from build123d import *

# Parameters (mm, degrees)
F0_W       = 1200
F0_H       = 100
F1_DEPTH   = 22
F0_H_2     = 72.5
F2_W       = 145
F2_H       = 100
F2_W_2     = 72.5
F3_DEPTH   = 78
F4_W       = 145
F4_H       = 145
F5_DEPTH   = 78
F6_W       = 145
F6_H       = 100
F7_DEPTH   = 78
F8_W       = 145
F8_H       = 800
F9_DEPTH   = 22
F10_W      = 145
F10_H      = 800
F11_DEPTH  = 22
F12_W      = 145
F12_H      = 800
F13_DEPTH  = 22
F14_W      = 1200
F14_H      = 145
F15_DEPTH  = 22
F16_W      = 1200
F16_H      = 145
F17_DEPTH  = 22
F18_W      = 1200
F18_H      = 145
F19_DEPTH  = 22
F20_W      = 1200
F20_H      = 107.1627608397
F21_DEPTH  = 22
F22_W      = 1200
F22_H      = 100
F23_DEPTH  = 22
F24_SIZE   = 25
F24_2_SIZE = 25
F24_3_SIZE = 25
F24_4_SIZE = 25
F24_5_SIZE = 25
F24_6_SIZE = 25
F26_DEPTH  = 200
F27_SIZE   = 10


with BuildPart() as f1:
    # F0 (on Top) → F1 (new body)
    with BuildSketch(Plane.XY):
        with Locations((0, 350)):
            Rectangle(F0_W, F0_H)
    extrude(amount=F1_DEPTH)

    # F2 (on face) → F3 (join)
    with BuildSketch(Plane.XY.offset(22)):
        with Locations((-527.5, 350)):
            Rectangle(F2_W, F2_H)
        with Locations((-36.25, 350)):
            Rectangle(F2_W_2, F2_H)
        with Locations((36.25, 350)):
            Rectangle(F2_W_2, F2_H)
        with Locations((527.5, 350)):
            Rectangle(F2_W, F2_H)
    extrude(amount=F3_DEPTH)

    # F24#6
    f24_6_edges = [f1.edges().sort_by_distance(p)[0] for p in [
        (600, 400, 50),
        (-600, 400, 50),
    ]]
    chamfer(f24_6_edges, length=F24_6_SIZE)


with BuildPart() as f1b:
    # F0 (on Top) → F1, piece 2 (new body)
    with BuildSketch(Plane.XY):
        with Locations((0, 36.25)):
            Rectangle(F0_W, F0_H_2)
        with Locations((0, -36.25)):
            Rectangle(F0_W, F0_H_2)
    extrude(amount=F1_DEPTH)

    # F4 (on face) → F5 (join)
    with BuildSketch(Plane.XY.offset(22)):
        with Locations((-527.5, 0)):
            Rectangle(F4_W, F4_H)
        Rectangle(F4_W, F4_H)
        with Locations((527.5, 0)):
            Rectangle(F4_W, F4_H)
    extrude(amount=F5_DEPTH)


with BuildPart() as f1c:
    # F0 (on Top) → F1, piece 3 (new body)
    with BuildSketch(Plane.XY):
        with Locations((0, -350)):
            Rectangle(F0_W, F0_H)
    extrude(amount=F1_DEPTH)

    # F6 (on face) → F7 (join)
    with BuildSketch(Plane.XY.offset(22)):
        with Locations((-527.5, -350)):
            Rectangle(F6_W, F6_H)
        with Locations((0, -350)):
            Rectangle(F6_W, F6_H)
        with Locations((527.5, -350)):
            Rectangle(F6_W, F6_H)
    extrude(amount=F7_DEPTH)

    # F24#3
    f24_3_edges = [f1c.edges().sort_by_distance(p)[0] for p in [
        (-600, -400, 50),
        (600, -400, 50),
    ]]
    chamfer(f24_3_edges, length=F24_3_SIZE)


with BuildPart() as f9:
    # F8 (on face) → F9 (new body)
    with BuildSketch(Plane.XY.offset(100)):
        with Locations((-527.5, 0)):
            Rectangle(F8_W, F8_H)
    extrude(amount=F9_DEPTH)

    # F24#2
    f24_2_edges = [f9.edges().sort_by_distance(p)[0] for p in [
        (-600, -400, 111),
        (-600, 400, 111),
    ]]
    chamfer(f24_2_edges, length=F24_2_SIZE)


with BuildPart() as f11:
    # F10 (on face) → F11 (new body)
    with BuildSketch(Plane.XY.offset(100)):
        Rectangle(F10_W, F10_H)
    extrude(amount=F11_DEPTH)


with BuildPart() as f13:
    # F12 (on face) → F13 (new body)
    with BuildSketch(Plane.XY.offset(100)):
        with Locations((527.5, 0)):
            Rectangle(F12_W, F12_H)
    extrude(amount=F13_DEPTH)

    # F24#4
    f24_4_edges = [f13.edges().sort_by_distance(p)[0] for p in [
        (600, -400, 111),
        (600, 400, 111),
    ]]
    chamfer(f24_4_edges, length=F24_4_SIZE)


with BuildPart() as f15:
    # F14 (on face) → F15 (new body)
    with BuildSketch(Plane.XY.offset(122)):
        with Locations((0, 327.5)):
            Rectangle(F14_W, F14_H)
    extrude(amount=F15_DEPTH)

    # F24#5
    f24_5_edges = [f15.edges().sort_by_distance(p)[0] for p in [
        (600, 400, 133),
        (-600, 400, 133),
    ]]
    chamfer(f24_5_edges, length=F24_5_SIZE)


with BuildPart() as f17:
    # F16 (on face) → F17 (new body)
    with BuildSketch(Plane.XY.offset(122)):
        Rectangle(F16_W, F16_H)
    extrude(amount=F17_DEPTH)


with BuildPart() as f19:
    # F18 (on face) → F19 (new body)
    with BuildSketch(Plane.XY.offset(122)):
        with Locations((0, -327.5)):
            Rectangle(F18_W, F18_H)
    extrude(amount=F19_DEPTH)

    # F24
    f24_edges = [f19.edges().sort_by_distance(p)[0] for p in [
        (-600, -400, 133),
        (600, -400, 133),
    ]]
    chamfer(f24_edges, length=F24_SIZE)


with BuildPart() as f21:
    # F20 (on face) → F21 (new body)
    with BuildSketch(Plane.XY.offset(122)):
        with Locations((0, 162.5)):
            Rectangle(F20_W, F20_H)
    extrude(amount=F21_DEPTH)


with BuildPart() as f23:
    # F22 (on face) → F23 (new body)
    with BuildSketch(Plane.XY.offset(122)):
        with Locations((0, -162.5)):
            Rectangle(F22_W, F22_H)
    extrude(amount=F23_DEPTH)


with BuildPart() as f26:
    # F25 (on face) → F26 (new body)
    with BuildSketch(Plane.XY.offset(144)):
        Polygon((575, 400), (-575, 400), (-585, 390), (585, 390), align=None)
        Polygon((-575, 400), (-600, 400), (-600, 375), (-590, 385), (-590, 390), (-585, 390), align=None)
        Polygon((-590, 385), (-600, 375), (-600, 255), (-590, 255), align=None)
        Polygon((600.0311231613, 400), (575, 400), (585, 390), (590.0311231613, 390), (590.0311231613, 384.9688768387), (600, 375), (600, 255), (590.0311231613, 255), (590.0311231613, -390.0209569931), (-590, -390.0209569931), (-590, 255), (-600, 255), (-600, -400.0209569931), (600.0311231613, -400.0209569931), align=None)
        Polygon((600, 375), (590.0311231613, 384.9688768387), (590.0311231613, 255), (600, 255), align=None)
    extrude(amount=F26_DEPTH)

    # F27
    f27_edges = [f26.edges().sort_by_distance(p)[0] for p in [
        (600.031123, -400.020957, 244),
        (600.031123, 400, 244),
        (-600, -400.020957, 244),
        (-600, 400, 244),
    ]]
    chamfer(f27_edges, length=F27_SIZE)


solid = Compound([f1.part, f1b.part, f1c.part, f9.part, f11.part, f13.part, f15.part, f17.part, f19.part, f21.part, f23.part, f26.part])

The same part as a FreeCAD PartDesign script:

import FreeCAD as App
import Part
import Sketcher

V = App.Vector


def edges_at(feature, points):
    """Names of the edges that pass closest to the given points."""
    edges = feature.Shape.Edges
    near = lambda p: min(range(len(edges)), key=lambda i: edges[i].distToShape(Part.Vertex(*p))[0])
    return sorted({f"Edge{near(p) + 1}" for p in points})

doc = App.newDocument("Part")
body = doc.addObject("PartDesign::Body", "Body")

sketch1 = doc.addObject("Sketcher::SketchObject", "Sketch")
body.addObject(sketch1)
sketch1.AttachmentSupport = (doc.XY_Plane, [""])
sketch1.MapMode = "FlatFace"
sketch1.addGeometry([
    Part.LineSegment(V(-600, 400, 0), V(-600, 300, 0)),
    Part.LineSegment(V(-600, 300, 0), V(600, 300, 0)),
    Part.LineSegment(V(600, 300, 0), V(600, 400, 0)),
    Part.LineSegment(V(600, 400, 0), V(-600, 400, 0)),
], False)
sketch1.addConstraint([
    Sketcher.Constraint("Coincident", 0, 2, 1, 1),
    Sketcher.Constraint("Coincident", 1, 2, 2, 1),
    Sketcher.Constraint("Coincident", 2, 2, 3, 1),
    Sketcher.Constraint("Coincident", 3, 2, 0, 1),
    Sketcher.Constraint("Vertical", 0),
    Sketcher.Constraint("Horizontal", 1),
    Sketcher.Constraint("Vertical", 2),
    Sketcher.Constraint("Horizontal", 3),
    Sketcher.Constraint("DistanceX", 1, 1, 1, 2, 1200.0),
    Sketcher.Constraint("DistanceY", 0, 2, 0, 1, 100.0),
    Sketcher.Constraint("DistanceX", 0, 2, -1, 1, 600.0),
    Sketcher.Constraint("DistanceY", -1, 1, 0, 2, 300.0),
])
pad1 = doc.addObject("PartDesign::Pad", "Pad")
body.addObject(pad1)
pad1.Profile = sketch1
pad1.Length = 22

sketch2 = doc.addObject("Sketcher::SketchObject", "Sketch001")
body.addObject(sketch2)
sketch2.AttachmentSupport = (doc.XY_Plane, [""])
sketch2.MapMode = "FlatFace"
sketch2.AttachmentOffset = App.Placement(V(0, 0, 22), App.Rotation())
sketch2.addGeometry([
    Part.LineSegment(V(-600, 400, 0), V(-600, 300, 0)),
    Part.LineSegment(V(-600, 300, 0), V(-455, 300, 0)),
    Part.LineSegment(V(-455, 300, 0), V(-455, 400, 0)),
    Part.LineSegment(V(-455, 400, 0), V(-600, 400, 0)),
    Part.LineSegment(V(-72, 400, 0), V(-72, 300, 0)),
    Part.LineSegment(V(-72, 300, 0), V(72, 300, 0)),
    Part.LineSegment(V(72, 300, 0), V(72, 400, 0)),
    Part.LineSegment(V(72, 400, 0), V(-72, 400, 0)),
    Part.LineSegment(V(455, 400, 0), V(455, 300, 0)),
    Part.LineSegment(V(455, 300, 0), V(600, 300, 0)),
    Part.LineSegment(V(600, 300, 0), V(600, 400, 0)),
    Part.LineSegment(V(600, 400, 0), V(455, 400, 0)),
], False)
sketch2.addConstraint([
    Sketcher.Constraint("Coincident", 0, 2, 1, 1),
    Sketcher.Constraint("Coincident", 1, 2, 2, 1),
    Sketcher.Constraint("Coincident", 2, 2, 3, 1),
    Sketcher.Constraint("Coincident", 3, 2, 0, 1),
    Sketcher.Constraint("Coincident", 4, 2, 5, 1),
    Sketcher.Constraint("Coincident", 5, 2, 6, 1),
    Sketcher.Constraint("Coincident", 6, 2, 7, 1),
    Sketcher.Constraint("Coincident", 7, 2, 4, 1),
    Sketcher.Constraint("Coincident", 8, 2, 9, 1),
    Sketcher.Constraint("Coincident", 9, 2, 10, 1),
    Sketcher.Constraint("Coincident", 10, 2, 11, 1),
    Sketcher.Constraint("Coincident", 11, 2, 8, 1),
    Sketcher.Constraint("Vertical", 0),
    Sketcher.Constraint("Horizontal", 1),
    Sketcher.Constraint("Vertical", 2),
    Sketcher.Constraint("Horizontal", 3),
    Sketcher.Constraint("Vertical", 4),
    Sketcher.Constraint("Horizontal", 5),
    Sketcher.Constraint("Vertical", 6),
    Sketcher.Constraint("Horizontal", 7),
    Sketcher.Constraint("Vertical", 8),
    Sketcher.Constraint("Horizontal", 9),
    Sketcher.Constraint("Vertical", 10),
    Sketcher.Constraint("Horizontal", 11),
    Sketcher.Constraint("Symmetric", 1, 2, 8, 2, -2),
    Sketcher.Constraint("Symmetric", 3, 2, 10, 2, -2),
    Sketcher.Constraint("Horizontal", 1, 2, 4, 2),
    Sketcher.Constraint("Horizontal", 3, 2, 6, 2),
    Sketcher.Constraint("Equal", 3, 5),
    Sketcher.Constraint("DistanceX", 1, 1, 1, 2, 145.0),
    Sketcher.Constraint("DistanceY", 0, 2, 0, 1, 100.0),
    Sketcher.Constraint("DistanceX", 0, 2, -1, 1, 600.0),
    Sketcher.Constraint("DistanceY", -1, 1, 0, 2, 300.0),
    Sketcher.Constraint("DistanceX", 4, 2, -1, 1, 72.5),
])
pad2 = doc.addObject("PartDesign::Pad", "Pad001")
body.addObject(pad2)
pad2.Profile = sketch2
pad2.Length = 78
doc.recompute()

chamfer = doc.addObject("PartDesign::Chamfer", "Chamfer")
body.addObject(chamfer)
chamfer.Base = (pad2, edges_at(pad2, [(600, 400, 50), (-600, 400, 50)]))
chamfer.Size = 25
body2 = doc.addObject("PartDesign::Body", "Body001")

sketch3 = doc.addObject("Sketcher::SketchObject", "Sketch002")
body2.addObject(sketch3)
sketch3.AttachmentSupport = (doc.getObject("XY_Plane001"), [""])
sketch3.MapMode = "FlatFace"
sketch3.addGeometry([
    Part.LineSegment(V(-600, 72, 0), V(-600, -72, 0)),
    Part.LineSegment(V(-600, -72, 0), V(600, -72, 0)),
    Part.LineSegment(V(600, -72, 0), V(600, 72, 0)),
    Part.LineSegment(V(600, 72, 0), V(-600, 72, 0)),
], False)
sketch3.addConstraint([
    Sketcher.Constraint("Coincident", 0, 2, 1, 1),
    Sketcher.Constraint("Coincident", 1, 2, 2, 1),
    Sketcher.Constraint("Coincident", 2, 2, 3, 1),
    Sketcher.Constraint("Coincident", 3, 2, 0, 1),
    Sketcher.Constraint("Vertical", 0),
    Sketcher.Constraint("Horizontal", 1),
    Sketcher.Constraint("Vertical", 2),
    Sketcher.Constraint("Horizontal", 3),
    Sketcher.Constraint("Symmetric", 0, 2, 2, 2, -1, 1),
    Sketcher.Constraint("DistanceX", 1, 1, 1, 2, 1200.0),
    Sketcher.Constraint("DistanceY", 0, 2, 0, 1, 145.0),
])
pad3 = doc.addObject("PartDesign::Pad", "Pad002")
body2.addObject(pad3)
pad3.Profile = sketch3
pad3.Length = 22

sketch4 = doc.addObject("Sketcher::SketchObject", "Sketch003")
body2.addObject(sketch4)
sketch4.AttachmentSupport = (doc.getObject("XY_Plane001"), [""])
sketch4.MapMode = "FlatFace"
sketch4.AttachmentOffset = App.Placement(V(0, 0, 22), App.Rotation())
sketch4.addGeometry([
    Part.LineSegment(V(-600, 72, 0), V(-600, -72, 0)),
    Part.LineSegment(V(-600, -72, 0), V(-455, -72, 0)),
    Part.LineSegment(V(-455, -72, 0), V(-455, 72, 0)),
    Part.LineSegment(V(-455, 72, 0), V(-600, 72, 0)),
    Part.LineSegment(V(-72, 72, 0), V(-72, -72, 0)),
    Part.LineSegment(V(-72, -72, 0), V(72, -72, 0)),
    Part.LineSegment(V(72, -72, 0), V(72, 72, 0)),
    Part.LineSegment(V(72, 72, 0), V(-72, 72, 0)),
    Part.LineSegment(V(455, 72, 0), V(455, -72, 0)),
    Part.LineSegment(V(455, -72, 0), V(600, -72, 0)),
    Part.LineSegment(V(600, -72, 0), V(600, 72, 0)),
    Part.LineSegment(V(600, 72, 0), V(455, 72, 0)),
], False)
sketch4.addConstraint([
    Sketcher.Constraint("Coincident", 0, 2, 1, 1),
    Sketcher.Constraint("Coincident", 1, 2, 2, 1),
    Sketcher.Constraint("Coincident", 2, 2, 3, 1),
    Sketcher.Constraint("Coincident", 3, 2, 0, 1),
    Sketcher.Constraint("Coincident", 4, 2, 5, 1),
    Sketcher.Constraint("Coincident", 5, 2, 6, 1),
    Sketcher.Constraint("Coincident", 6, 2, 7, 1),
    Sketcher.Constraint("Coincident", 7, 2, 4, 1),
    Sketcher.Constraint("Coincident", 8, 2, 9, 1),
    Sketcher.Constraint("Coincident", 9, 2, 10, 1),
    Sketcher.Constraint("Coincident", 10, 2, 11, 1),
    Sketcher.Constraint("Coincident", 11, 2, 8, 1),
    Sketcher.Constraint("Vertical", 0),
    Sketcher.Constraint("Horizontal", 1),
    Sketcher.Constraint("Vertical", 2),
    Sketcher.Constraint("Horizontal", 3),
    Sketcher.Constraint("Vertical", 4),
    Sketcher.Constraint("Horizontal", 5),
    Sketcher.Constraint("Vertical", 6),
    Sketcher.Constraint("Horizontal", 7),
    Sketcher.Constraint("Vertical", 8),
    Sketcher.Constraint("Horizontal", 9),
    Sketcher.Constraint("Vertical", 10),
    Sketcher.Constraint("Horizontal", 11),
    Sketcher.Constraint("Symmetric", 4, 2, 6, 2, -1, 1),
    Sketcher.Constraint("Symmetric", 2, 2, 8, 2, -1, 1),
    Sketcher.Constraint("Symmetric", 0, 2, 10, 2, -1, 1),
    Sketcher.Constraint("Horizontal", 1, 2, 4, 2),
    Sketcher.Constraint("Horizontal", 3, 2, 6, 2),
    Sketcher.Constraint("Equal", 3, 5),
    Sketcher.Constraint("Equal", 11, 0),
    Sketcher.Constraint("DistanceX", 1, 1, 1, 2, 145.0),
    Sketcher.Constraint("DistanceX", 0, 2, -1, 1, 600.0),
])
pad4 = doc.addObject("PartDesign::Pad", "Pad003")
body2.addObject(pad4)
pad4.Profile = sketch4
pad4.Length = 78
body3 = doc.addObject("PartDesign::Body", "Body002")

sketch5 = doc.addObject("Sketcher::SketchObject", "Sketch004")
body3.addObject(sketch5)
sketch5.AttachmentSupport = (doc.getObject("XY_Plane002"), [""])
sketch5.MapMode = "FlatFace"
sketch5.addGeometry([
    Part.LineSegment(V(-600, -300, 0), V(-600, -400, 0)),
    Part.LineSegment(V(-600, -400, 0), V(600, -400, 0)),
    Part.LineSegment(V(600, -400, 0), V(600, -300, 0)),
    Part.LineSegment(V(600, -300, 0), V(-600, -300, 0)),
], False)
sketch5.addConstraint([
    Sketcher.Constraint("Coincident", 0, 2, 1, 1),
    Sketcher.Constraint("Coincident", 1, 2, 2, 1),
    Sketcher.Constraint("Coincident", 2, 2, 3, 1),
    Sketcher.Constraint("Coincident", 3, 2, 0, 1),
    Sketcher.Constraint("Vertical", 0),
    Sketcher.Constraint("Horizontal", 1),
    Sketcher.Constraint("Vertical", 2),
    Sketcher.Constraint("Horizontal", 3),
    Sketcher.Constraint("DistanceX", 1, 1, 1, 2, 1200.0),
    Sketcher.Constraint("DistanceY", 0, 2, 0, 1, 100.0),
    Sketcher.Constraint("DistanceX", 0, 2, -1, 1, 600.0),
    Sketcher.Constraint("DistanceY", 0, 2, -1, 1, 400.0),
])
pad5 = doc.addObject("PartDesign::Pad", "Pad004")
body3.addObject(pad5)
pad5.Profile = sketch5
pad5.Length = 22

sketch6 = doc.addObject("Sketcher::SketchObject", "Sketch005")
body3.addObject(sketch6)
sketch6.AttachmentSupport = (doc.getObject("XY_Plane002"), [""])
sketch6.MapMode = "FlatFace"
sketch6.AttachmentOffset = App.Placement(V(0, 0, 22), App.Rotation())
sketch6.addGeometry([
    Part.LineSegment(V(-600, -300, 0), V(-600, -400, 0)),
    Part.LineSegment(V(-600, -400, 0), V(-455, -400, 0)),
    Part.LineSegment(V(-455, -400, 0), V(-455, -300, 0)),
    Part.LineSegment(V(-455, -300, 0), V(-600, -300, 0)),
    Part.LineSegment(V(-72, -300, 0), V(-72, -400, 0)),
    Part.LineSegment(V(-72, -400, 0), V(72, -400, 0)),
    Part.LineSegment(V(72, -400, 0), V(72, -300, 0)),
    Part.LineSegment(V(72, -300, 0), V(-72, -300, 0)),
    Part.LineSegment(V(455, -300, 0), V(455, -400, 0)),
    Part.LineSegment(V(455, -400, 0), V(600, -400, 0)),
    Part.LineSegment(V(600, -400, 0), V(600, -300, 0)),
    Part.LineSegment(V(600, -300, 0), V(455, -300, 0)),
], False)
sketch6.addConstraint([
    Sketcher.Constraint("Coincident", 0, 2, 1, 1),
    Sketcher.Constraint("Coincident", 1, 2, 2, 1),
    Sketcher.Constraint("Coincident", 2, 2, 3, 1),
    Sketcher.Constraint("Coincident", 3, 2, 0, 1),
    Sketcher.Constraint("Coincident", 4, 2, 5, 1),
    Sketcher.Constraint("Coincident", 5, 2, 6, 1),
    Sketcher.Constraint("Coincident", 6, 2, 7, 1),
    Sketcher.Constraint("Coincident", 7, 2, 4, 1),
    Sketcher.Constraint("Coincident", 8, 2, 9, 1),
    Sketcher.Constraint("Coincident", 9, 2, 10, 1),
    Sketcher.Constraint("Coincident", 10, 2, 11, 1),
    Sketcher.Constraint("Coincident", 11, 2, 8, 1),
    Sketcher.Constraint("Vertical", 0),
    Sketcher.Constraint("Horizontal", 1),
    Sketcher.Constraint("Vertical", 2),
    Sketcher.Constraint("Horizontal", 3),
    Sketcher.Constraint("Vertical", 4),
    Sketcher.Constraint("Horizontal", 5),
    Sketcher.Constraint("Vertical", 6),
    Sketcher.Constraint("Horizontal", 7),
    Sketcher.Constraint("Vertical", 8),
    Sketcher.Constraint("Horizontal", 9),
    Sketcher.Constraint("Vertical", 10),
    Sketcher.Constraint("Horizontal", 11),
    Sketcher.Constraint("Symmetric", 1, 2, 8, 2, -2),
    Sketcher.Constraint("Symmetric", 3, 2, 10, 2, -2),
    Sketcher.Constraint("Horizontal", 1, 2, 4, 2),
    Sketcher.Constraint("Horizontal", 3, 2, 6, 2),
    Sketcher.Constraint("Equal", 3, 5),
    Sketcher.Constraint("DistanceX", 1, 1, 1, 2, 145.0),
    Sketcher.Constraint("DistanceY", 0, 2, 0, 1, 100.0),
    Sketcher.Constraint("DistanceX", 0, 2, -1, 1, 600.0),
    Sketcher.Constraint("DistanceY", 0, 2, -1, 1, 400.0),
    Sketcher.Constraint("DistanceX", 4, 2, -1, 1, 72.5),
])
pad6 = doc.addObject("PartDesign::Pad", "Pad005")
body3.addObject(pad6)
pad6.Profile = sketch6
pad6.Length = 78
doc.recompute()

chamfer2 = doc.addObject("PartDesign::Chamfer", "Chamfer001")
body3.addObject(chamfer2)
chamfer2.Base = (pad6, edges_at(pad6, [(-600, -400, 50), (600, -400, 50)]))
chamfer2.Size = 25
body4 = doc.addObject("PartDesign::Body", "Body003")

sketch7 = doc.addObject("Sketcher::SketchObject", "Sketch006")
body4.addObject(sketch7)
sketch7.AttachmentSupport = (doc.getObject("XY_Plane003"), [""])
sketch7.MapMode = "FlatFace"
sketch7.AttachmentOffset = App.Placement(V(0, 0, 100), App.Rotation())
sketch7.addGeometry([
    Part.LineSegment(V(-600, 400, 0), V(-600, -400, 0)),
    Part.LineSegment(V(-600, -400, 0), V(-455, -400, 0)),
    Part.LineSegment(V(-455, -400, 0), V(-455, 400, 0)),
    Part.LineSegment(V(-455, 400, 0), V(-600, 400, 0)),
], False)
sketch7.addConstraint([
    Sketcher.Constraint("Coincident", 0, 2, 1, 1),
    Sketcher.Constraint("Coincident", 1, 2, 2, 1),
    Sketcher.Constraint("Coincident", 2, 2, 3, 1),
    Sketcher.Constraint("Coincident", 3, 2, 0, 1),
    Sketcher.Constraint("Vertical", 0),
    Sketcher.Constraint("Horizontal", 1),
    Sketcher.Constraint("Vertical", 2),
    Sketcher.Constraint("Horizontal", 3),
    Sketcher.Constraint("DistanceX", 1, 1, 1, 2, 145.0),
    Sketcher.Constraint("DistanceY", 0, 2, 0, 1, 800.0),
    Sketcher.Constraint("DistanceX", 0, 2, -1, 1, 600.0),
    Sketcher.Constraint("DistanceY", 0, 2, -1, 1, 400.0),
])
pad7 = doc.addObject("PartDesign::Pad", "Pad006")
body4.addObject(pad7)
pad7.Profile = sketch7
pad7.Length = 22
doc.recompute()

chamfer3 = doc.addObject("PartDesign::Chamfer", "Chamfer002")
body4.addObject(chamfer3)
chamfer3.Base = (pad7, edges_at(pad7, [(-600, -400, 111), (-600, 400, 111)]))
chamfer3.Size = 25
body5 = doc.addObject("PartDesign::Body", "Body004")

sketch8 = doc.addObject("Sketcher::SketchObject", "Sketch007")
body5.addObject(sketch8)
sketch8.AttachmentSupport = (doc.getObject("XY_Plane004"), [""])
sketch8.MapMode = "FlatFace"
sketch8.AttachmentOffset = App.Placement(V(0, 0, 100), App.Rotation())
sketch8.addGeometry([
    Part.LineSegment(V(-72, 400, 0), V(-72, -400, 0)),
    Part.LineSegment(V(-72, -400, 0), V(72, -400, 0)),
    Part.LineSegment(V(72, -400, 0), V(72, 400, 0)),
    Part.LineSegment(V(72, 400, 0), V(-72, 400, 0)),
], False)
sketch8.addConstraint([
    Sketcher.Constraint("Coincident", 0, 2, 1, 1),
    Sketcher.Constraint("Coincident", 1, 2, 2, 1),
    Sketcher.Constraint("Coincident", 2, 2, 3, 1),
    Sketcher.Constraint("Coincident", 3, 2, 0, 1),
    Sketcher.Constraint("Vertical", 0),
    Sketcher.Constraint("Horizontal", 1),
    Sketcher.Constraint("Vertical", 2),
    Sketcher.Constraint("Horizontal", 3),
    Sketcher.Constraint("Symmetric", 0, 2, 2, 2, -1, 1),
    Sketcher.Constraint("DistanceX", 1, 1, 1, 2, 145.0),
    Sketcher.Constraint("DistanceY", 0, 2, 0, 1, 800.0),
])
pad8 = doc.addObject("PartDesign::Pad", "Pad007")
body5.addObject(pad8)
pad8.Profile = sketch8
pad8.Length = 22
body6 = doc.addObject("PartDesign::Body", "Body005")

sketch9 = doc.addObject("Sketcher::SketchObject", "Sketch008")
body6.addObject(sketch9)
sketch9.AttachmentSupport = (doc.getObject("XY_Plane005"), [""])
sketch9.MapMode = "FlatFace"
sketch9.AttachmentOffset = App.Placement(V(0, 0, 100), App.Rotation())
sketch9.addGeometry([
    Part.LineSegment(V(455, 400, 0), V(455, -400, 0)),
    Part.LineSegment(V(455, -400, 0), V(600, -400, 0)),
    Part.LineSegment(V(600, -400, 0), V(600, 400, 0)),
    Part.LineSegment(V(600, 400, 0), V(455, 400, 0)),
], False)
sketch9.addConstraint([
    Sketcher.Constraint("Coincident", 0, 2, 1, 1),
    Sketcher.Constraint("Coincident", 1, 2, 2, 1),
    Sketcher.Constraint("Coincident", 2, 2, 3, 1),
    Sketcher.Constraint("Coincident", 3, 2, 0, 1),
    Sketcher.Constraint("Vertical", 0),
    Sketcher.Constraint("Horizontal", 1),
    Sketcher.Constraint("Vertical", 2),
    Sketcher.Constraint("Horizontal", 3),
    Sketcher.Constraint("DistanceX", 1, 1, 1, 2, 145.0),
    Sketcher.Constraint("DistanceY", 0, 2, 0, 1, 800.0),
    Sketcher.Constraint("DistanceX", -1, 1, 0, 2, 455.0),
    Sketcher.Constraint("DistanceY", 0, 2, -1, 1, 400.0),
])
pad9 = doc.addObject("PartDesign::Pad", "Pad008")
body6.addObject(pad9)
pad9.Profile = sketch9
pad9.Length = 22
doc.recompute()

chamfer4 = doc.addObject("PartDesign::Chamfer", "Chamfer003")
body6.addObject(chamfer4)
chamfer4.Base = (pad9, edges_at(pad9, [(600, -400, 111), (600, 400, 111)]))
chamfer4.Size = 25
body7 = doc.addObject("PartDesign::Body", "Body006")

sketch10 = doc.addObject("Sketcher::SketchObject", "Sketch009")
body7.addObject(sketch10)
sketch10.AttachmentSupport = (doc.getObject("XY_Plane006"), [""])
sketch10.MapMode = "FlatFace"
sketch10.AttachmentOffset = App.Placement(V(0, 0, 122), App.Rotation())
sketch10.addGeometry([
    Part.LineSegment(V(-600, 400, 0), V(-600, 255, 0)),
    Part.LineSegment(V(-600, 255, 0), V(600, 255, 0)),
    Part.LineSegment(V(600, 255, 0), V(600, 400, 0)),
    Part.LineSegment(V(600, 400, 0), V(-600, 400, 0)),
], False)
sketch10.addConstraint([
    Sketcher.Constraint("Coincident", 0, 2, 1, 1),
    Sketcher.Constraint("Coincident", 1, 2, 2, 1),
    Sketcher.Constraint("Coincident", 2, 2, 3, 1),
    Sketcher.Constraint("Coincident", 3, 2, 0, 1),
    Sketcher.Constraint("Vertical", 0),
    Sketcher.Constraint("Horizontal", 1),
    Sketcher.Constraint("Vertical", 2),
    Sketcher.Constraint("Horizontal", 3),
    Sketcher.Constraint("DistanceX", 1, 1, 1, 2, 1200.0),
    Sketcher.Constraint("DistanceY", 0, 2, 0, 1, 145.0),
    Sketcher.Constraint("DistanceX", 0, 2, -1, 1, 600.0),
    Sketcher.Constraint("DistanceY", -1, 1, 0, 2, 255.0),
])
pad10 = doc.addObject("PartDesign::Pad", "Pad009")
body7.addObject(pad10)
pad10.Profile = sketch10
pad10.Length = 22
doc.recompute()

chamfer5 = doc.addObject("PartDesign::Chamfer", "Chamfer004")
body7.addObject(chamfer5)
chamfer5.Base = (pad10, edges_at(pad10, [(600, 400, 133), (-600, 400, 133)]))
chamfer5.Size = 25
body8 = doc.addObject("PartDesign::Body", "Body007")

sketch11 = doc.addObject("Sketcher::SketchObject", "Sketch010")
body8.addObject(sketch11)
sketch11.AttachmentSupport = (doc.getObject("XY_Plane007"), [""])
sketch11.MapMode = "FlatFace"
sketch11.AttachmentOffset = App.Placement(V(0, 0, 122), App.Rotation())
sketch11.addGeometry([
    Part.LineSegment(V(-600, 72, 0), V(-600, -72, 0)),
    Part.LineSegment(V(-600, -72, 0), V(600, -72, 0)),
    Part.LineSegment(V(600, -72, 0), V(600, 72, 0)),
    Part.LineSegment(V(600, 72, 0), V(-600, 72, 0)),
], False)
sketch11.addConstraint([
    Sketcher.Constraint("Coincident", 0, 2, 1, 1),
    Sketcher.Constraint("Coincident", 1, 2, 2, 1),
    Sketcher.Constraint("Coincident", 2, 2, 3, 1),
    Sketcher.Constraint("Coincident", 3, 2, 0, 1),
    Sketcher.Constraint("Vertical", 0),
    Sketcher.Constraint("Horizontal", 1),
    Sketcher.Constraint("Vertical", 2),
    Sketcher.Constraint("Horizontal", 3),
    Sketcher.Constraint("Symmetric", 0, 2, 2, 2, -1, 1),
    Sketcher.Constraint("DistanceX", 1, 1, 1, 2, 1200.0),
    Sketcher.Constraint("DistanceY", 0, 2, 0, 1, 145.0),
])
pad11 = doc.addObject("PartDesign::Pad", "Pad010")
body8.addObject(pad11)
pad11.Profile = sketch11
pad11.Length = 22
body9 = doc.addObject("PartDesign::Body", "Body008")

sketch12 = doc.addObject("Sketcher::SketchObject", "Sketch011")
body9.addObject(sketch12)
sketch12.AttachmentSupport = (doc.getObject("XY_Plane008"), [""])
sketch12.MapMode = "FlatFace"
sketch12.AttachmentOffset = App.Placement(V(0, 0, 122), App.Rotation())
sketch12.addGeometry([
    Part.LineSegment(V(-600, -255, 0), V(-600, -400, 0)),
    Part.LineSegment(V(-600, -400, 0), V(600, -400, 0)),
    Part.LineSegment(V(600, -400, 0), V(600, -255, 0)),
    Part.LineSegment(V(600, -255, 0), V(-600, -255, 0)),
], False)
sketch12.addConstraint([
    Sketcher.Constraint("Coincident", 0, 2, 1, 1),
    Sketcher.Constraint("Coincident", 1, 2, 2, 1),
    Sketcher.Constraint("Coincident", 2, 2, 3, 1),
    Sketcher.Constraint("Coincident", 3, 2, 0, 1),
    Sketcher.Constraint("Vertical", 0),
    Sketcher.Constraint("Horizontal", 1),
    Sketcher.Constraint("Vertical", 2),
    Sketcher.Constraint("Horizontal", 3),
    Sketcher.Constraint("DistanceX", 1, 1, 1, 2, 1200.0),
    Sketcher.Constraint("DistanceY", 0, 2, 0, 1, 145.0),
    Sketcher.Constraint("DistanceX", 0, 2, -1, 1, 600.0),
    Sketcher.Constraint("DistanceY", 0, 2, -1, 1, 400.0),
])
pad12 = doc.addObject("PartDesign::Pad", "Pad011")
body9.addObject(pad12)
pad12.Profile = sketch12
pad12.Length = 22
doc.recompute()

chamfer6 = doc.addObject("PartDesign::Chamfer", "Chamfer005")
body9.addObject(chamfer6)
chamfer6.Base = (pad12, edges_at(pad12, [(-600, -400, 133), (600, -400, 133)]))
chamfer6.Size = 25
body10 = doc.addObject("PartDesign::Body", "Body009")

sketch13 = doc.addObject("Sketcher::SketchObject", "Sketch012")
body10.addObject(sketch13)
sketch13.AttachmentSupport = (doc.getObject("XY_Plane009"), [""])
sketch13.MapMode = "FlatFace"
sketch13.AttachmentOffset = App.Placement(V(0, 0, 122), App.Rotation())
sketch13.addGeometry([
    Part.LineSegment(V(-600, 216, 0), V(-600, 109, 0)),
    Part.LineSegment(V(-600, 109, 0), V(600, 109, 0)),
    Part.LineSegment(V(600, 109, 0), V(600, 216, 0)),
    Part.LineSegment(V(600, 216, 0), V(-600, 216, 0)),
], False)
sketch13.addConstraint([
    Sketcher.Constraint("Coincident", 0, 2, 1, 1),
    Sketcher.Constraint("Coincident", 1, 2, 2, 1),
    Sketcher.Constraint("Coincident", 2, 2, 3, 1),
    Sketcher.Constraint("Coincident", 3, 2, 0, 1),
    Sketcher.Constraint("Vertical", 0),
    Sketcher.Constraint("Horizontal", 1),
    Sketcher.Constraint("Vertical", 2),
    Sketcher.Constraint("Horizontal", 3),
    Sketcher.Constraint("DistanceX", 1, 1, 1, 2, 1200.0),
    Sketcher.Constraint("DistanceX", 0, 2, -1, 1, 600.0),
    Sketcher.Constraint("DistanceY", 0, 2, 0, 1, 107.162761),
    Sketcher.Constraint("DistanceY", -1, 1, 0, 2, 108.91862),
])
pad13 = doc.addObject("PartDesign::Pad", "Pad012")
body10.addObject(pad13)
pad13.Profile = sketch13
pad13.Length = 22
body11 = doc.addObject("PartDesign::Body", "Body010")

sketch14 = doc.addObject("Sketcher::SketchObject", "Sketch013")
body11.addObject(sketch14)
sketch14.AttachmentSupport = (doc.getObject("XY_Plane010"), [""])
sketch14.MapMode = "FlatFace"
sketch14.AttachmentOffset = App.Placement(V(0, 0, 122), App.Rotation())
sketch14.addGeometry([
    Part.LineSegment(V(-600, -112, 0), V(-600, -212, 0)),
    Part.LineSegment(V(-600, -212, 0), V(600, -212, 0)),
    Part.LineSegment(V(600, -212, 0), V(600, -112, 0)),
    Part.LineSegment(V(600, -112, 0), V(-600, -112, 0)),
], False)
sketch14.addConstraint([
    Sketcher.Constraint("Coincident", 0, 2, 1, 1),
    Sketcher.Constraint("Coincident", 1, 2, 2, 1),
    Sketcher.Constraint("Coincident", 2, 2, 3, 1),
    Sketcher.Constraint("Coincident", 3, 2, 0, 1),
    Sketcher.Constraint("Vertical", 0),
    Sketcher.Constraint("Horizontal", 1),
    Sketcher.Constraint("Vertical", 2),
    Sketcher.Constraint("Horizontal", 3),
    Sketcher.Constraint("DistanceX", 1, 1, 1, 2, 1200.0),
    Sketcher.Constraint("DistanceY", 0, 2, 0, 1, 100.0),
    Sketcher.Constraint("DistanceX", 0, 2, -1, 1, 600.0),
    Sketcher.Constraint("DistanceY", 0, 2, -1, 1, 212.5),
])
pad14 = doc.addObject("PartDesign::Pad", "Pad013")
body11.addObject(pad14)
pad14.Profile = sketch14
pad14.Length = 22
body12 = doc.addObject("PartDesign::Body", "Body011")

sketch15 = doc.addObject("Sketcher::SketchObject", "Sketch014")
body12.addObject(sketch15)
sketch15.AttachmentSupport = (doc.getObject("XY_Plane011"), [""])
sketch15.MapMode = "FlatFace"
sketch15.AttachmentOffset = App.Placement(V(0, 0, 144), App.Rotation())
sketch15.addGeometry([
    Part.LineSegment(V(-600, 400, 0), V(-600, -400, 0)),
    Part.LineSegment(V(-600, -400, 0), V(600, -400, 0)),
    Part.LineSegment(V(600, -400, 0), V(600, 400, 0)),
    Part.LineSegment(V(600, 400, 0), V(-600, 400, 0)),
    Part.LineSegment(V(-590, 390, 0), V(590, 390, 0)),
    Part.LineSegment(V(590, 390, 0), V(590, -390, 0)),
    Part.LineSegment(V(590, -390, 0), V(-590, -390, 0)),
    Part.LineSegment(V(-590, -390, 0), V(-590, 390, 0)),
], False)
sketch15.addConstraint([
    Sketcher.Constraint("Coincident", 0, 2, 1, 1),
    Sketcher.Constraint("Coincident", 1, 2, 2, 1),
    Sketcher.Constraint("Coincident", 2, 2, 3, 1),
    Sketcher.Constraint("Coincident", 3, 2, 0, 1),
    Sketcher.Constraint("Coincident", 4, 2, 5, 1),
    Sketcher.Constraint("Coincident", 5, 2, 6, 1),
    Sketcher.Constraint("Coincident", 6, 2, 7, 1),
    Sketcher.Constraint("Coincident", 7, 2, 4, 1),
    Sketcher.Constraint("Vertical", 0),
    Sketcher.Constraint("Horizontal", 1),
    Sketcher.Constraint("Vertical", 2),
    Sketcher.Constraint("Horizontal", 3),
    Sketcher.Constraint("Horizontal", 4),
    Sketcher.Constraint("Vertical", 5),
    Sketcher.Constraint("Horizontal", 6),
    Sketcher.Constraint("Vertical", 7),
    Sketcher.Constraint("DistanceX", 0, 2, -1, 1, 600.0),
    Sketcher.Constraint("DistanceY", -1, 1, 2, 2, 400.0),
    Sketcher.Constraint("DistanceY", -1, 1, 4, 2, 390.0),
    Sketcher.Constraint("DistanceX", 6, 2, -1, 1, 590.0),
    Sketcher.Constraint("DistanceX", 4, 2, 2, 2, 10.0),
    Sketcher.Constraint("DistanceY", 1, 2, 5, 2, 10.0),
    Sketcher.Constraint("DistanceX", 1, 1, 1, 2, 1200.031123),
    Sketcher.Constraint("DistanceY", 0, 2, 0, 1, 800.020957),
])
pad15 = doc.addObject("PartDesign::Pad", "Pad014")
body12.addObject(pad15)
pad15.Profile = sketch15
pad15.Length = 200
doc.recompute()

chamfer7 = doc.addObject("PartDesign::Chamfer", "Chamfer006")
body12.addObject(chamfer7)
chamfer7.Base = (pad15, edges_at(pad15, [
    (600.031, -400.021, 244),
    (600.031, 400, 244),
    (-600, -400.021, 244),
    (-600, 400, 244),
]))
chamfer7.Size = 10

doc.recompute()
